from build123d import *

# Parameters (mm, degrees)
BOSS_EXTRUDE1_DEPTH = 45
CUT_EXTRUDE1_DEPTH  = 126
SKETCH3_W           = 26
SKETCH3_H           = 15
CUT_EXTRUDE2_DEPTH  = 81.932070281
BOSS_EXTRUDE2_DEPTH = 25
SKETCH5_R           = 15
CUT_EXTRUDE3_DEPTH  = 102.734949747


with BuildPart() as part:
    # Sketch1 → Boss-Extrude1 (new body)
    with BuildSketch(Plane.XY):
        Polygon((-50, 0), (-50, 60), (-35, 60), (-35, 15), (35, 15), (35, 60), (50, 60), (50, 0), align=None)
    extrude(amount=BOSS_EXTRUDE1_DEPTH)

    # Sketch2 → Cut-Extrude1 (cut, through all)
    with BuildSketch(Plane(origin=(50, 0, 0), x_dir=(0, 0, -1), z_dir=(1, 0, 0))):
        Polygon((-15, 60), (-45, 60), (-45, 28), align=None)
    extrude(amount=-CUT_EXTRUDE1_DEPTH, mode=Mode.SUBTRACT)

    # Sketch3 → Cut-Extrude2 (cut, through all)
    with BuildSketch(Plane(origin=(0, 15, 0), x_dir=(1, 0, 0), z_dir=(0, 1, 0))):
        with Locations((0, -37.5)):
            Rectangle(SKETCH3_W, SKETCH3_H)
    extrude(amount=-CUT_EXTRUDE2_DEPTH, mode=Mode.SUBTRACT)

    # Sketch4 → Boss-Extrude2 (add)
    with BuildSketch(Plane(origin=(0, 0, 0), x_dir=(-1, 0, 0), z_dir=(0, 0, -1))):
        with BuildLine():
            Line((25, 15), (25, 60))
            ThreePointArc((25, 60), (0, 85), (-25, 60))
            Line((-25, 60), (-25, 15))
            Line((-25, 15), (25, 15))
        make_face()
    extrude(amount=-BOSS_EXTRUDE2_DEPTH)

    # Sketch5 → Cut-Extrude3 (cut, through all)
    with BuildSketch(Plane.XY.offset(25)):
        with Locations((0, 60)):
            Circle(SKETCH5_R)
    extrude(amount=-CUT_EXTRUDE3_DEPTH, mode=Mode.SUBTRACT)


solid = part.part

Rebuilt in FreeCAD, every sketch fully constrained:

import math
import FreeCAD as App
import Part
import Sketcher

V = App.Vector
Q = App.Units.Quantity


def add_polygon(sketch, points):
    """Adds a closed chain of lines whose ends are joined by coincident constraints."""
    first, n = sketch.GeometryCount, len(points)
    for a, b in zip(points, points[1:] + points[:1]):
        sketch.addGeometry(Part.LineSegment(App.Vector(*a, 0), App.Vector(*b, 0)), False)
    for i in range(n):
        sketch.addConstraint(Sketcher.Constraint("Coincident", first + i, 2, first + (i + 1) % n, 1))

doc = App.newDocument("Part")
body = doc.addObject("PartDesign::Body", "Body")

# Sketch on XY plane
sketch1 = body.newObject("Sketcher::SketchObject", "Sketch")
sketch1.AttachmentSupport = (doc.getObject("XY_Plane"), [""])
sketch1.MapMode = "FlatFace"
add_polygon(sketch1, [(-50, 60), (-50, 0), (50, 0), (50, 60), (35, 60), (35, 15), (-35, 15), (-35, 60)])  # lines 0-7
sketch1.addConstraint([
    Sketcher.Constraint("Vertical", 0),
    Sketcher.Constraint("Horizontal", 1),
    Sketcher.Constraint("Vertical", 2),
    Sketcher.Constraint("Horizontal", 3),
    Sketcher.Constraint("Vertical", 4),
    Sketcher.Constraint("Horizontal", 5),
    Sketcher.Constraint("Vertical", 6),
    Sketcher.Constraint("Horizontal", 7),
    Sketcher.Constraint("Symmetric", 0, 2, 1, 2, -1, 1),
    Sketcher.Constraint("Symmetric", 3, 2, 6, 2, -2),
    Sketcher.Constraint("DistanceX", 1, 1, 1, 2, Q("100 mm")),
    Sketcher.Constraint("DistanceX", 3, 2, 3, 1, Q("15 mm")),
    Sketcher.Constraint("DistanceY", 0, 2, 0, 1, Q("60 mm")),
    Sketcher.Constraint("DistanceY", 4, 2, 4, 1, Q("45 mm")),
])
pad1 = body.newObject("PartDesign::Pad", "Pad")
pad1.Profile = sketch1
pad1.Length = 45

# Sketch on YZ plane
sketch2 = body.newObject("Sketcher::SketchObject", "Sketch001")
sketch2.AttachmentSupport = (doc.getObject("YZ_Plane"), [""])
sketch2.MapMode = "FlatFace"
sketch2.AttachmentOffset = App.Placement(V(0, 0, 50), App.Rotation())
add_polygon(sketch2, [(60, 15), (60, 45), (28, 45)])  # lines 0-2
sketch2.addConstraint([
    Sketcher.Constraint("Vertical", 0),
    Sketcher.Constraint("Horizontal", 1),
    Sketcher.Constraint("DistanceX", 1, 2, 1, 1, Q("32 mm")),
    Sketcher.Constraint("DistanceY", 0, 1, 0, 2, Q("30 mm")),
    Sketcher.Constraint("DistanceX", -1, 1, 0, 2, Q("60 mm")),
    Sketcher.Constraint("DistanceY", -1, 1, 0, 2, Q("45 mm")),
])
pocket1 = body.newObject("PartDesign::Pocket", "Pocket")
pocket1.Profile = sketch2
pocket1.Type = "ThroughAll"

# Sketch on XZ plane
sketch3 = body.newObject("Sketcher::SketchObject", "Sketch002")
sketch3.AttachmentSupport = (doc.getObject("XZ_Plane"), [""])
sketch3.MapMode = "FlatFace"
sketch3.AttachmentOffset = App.Placement(V(0, 0, -15), App.Rotation())
add_polygon(sketch3, [(-13, 30), (-13, 45), (13, 45), (13, 30)])  # lines 0-3
sketch3.addConstraint([
    Sketcher.Constraint("Vertical", 0),
    Sketcher.Constraint("Horizontal", 1),
    Sketcher.Constraint("Vertical", 2),
    Sketcher.Constraint("Horizontal", 3),
    Sketcher.Constraint("DistanceX", 1, 1, 1, 2, Q("26 mm")),
    Sketcher.Constraint("DistanceY", 0, 1, 0, 2, Q("15 mm")),
    Sketcher.Constraint("DistanceX", 0, 2, -1, 1, Q("13 mm")),
    Sketcher.Constraint("DistanceY", -1, 1, 0, 2, Q("45 mm")),
])
pocket2 = body.newObject("PartDesign::Pocket", "Pocket001")
pocket2.Profile = sketch3
pocket2.Type = "ThroughAll"
pocket2.Reversed = True

# Sketch on XY plane
sketch4 = body.newObject("Sketcher::SketchObject", "Sketch003")
sketch4.AttachmentSupport = (doc.getObject("XY_Plane"), [""])
sketch4.MapMode = "FlatFace"
sketch4.addGeometry([
    Part.LineSegment(V(-25, 15, 0), V(-25, 60, 0)),
    Part.ArcOfCircle(Part.Circle(V(0, 60, 0), V(0, 0, 1), 25), math.radians(0), math.radians(180)),
    Part.LineSegment(V(25, 60, 0), V(25, 15, 0)),
    Part.LineSegment(V(25, 15, 0), V(-25, 15, 0)),
], False)
sketch4.addConstraint([
    Sketcher.Constraint("Tangent", 0, 2, 1, 2),
    Sketcher.Constraint("Tangent", 1, 1, 2, 1),
    Sketcher.Constraint("Coincident", 2, 2, 3, 1),
    Sketcher.Constraint("Coincident", 3, 2, 0, 1),
    Sketcher.Constraint("Vertical", 0),
    Sketcher.Constraint("Vertical", 2),
    Sketcher.Constraint("Horizontal", 3),
    Sketcher.Constraint("PointOnObject", 1, 3, -2),
    Sketcher.Constraint("Radius", 1, Q("25 mm")),
    Sketcher.Constraint("DistanceY", 0, 1, 0, 2, Q("45 mm")),
    Sketcher.Constraint("DistanceY", -1, 1, 1, 3, Q("60 mm")),
])
pad2 = body.newObject("PartDesign::Pad", "Pad001")
pad2.Profile = sketch4
pad2.Length = 25

# Sketch on XY plane
sketch5 = body.newObject("Sketcher::SketchObject", "Sketch004")
sketch5.AttachmentSupport = (doc.getObject("XY_Plane"), [""])
sketch5.MapMode = "FlatFace"
sketch5.AttachmentOffset = App.Placement(V(0, 0, 25), App.Rotation())
sketch5.addGeometry(Part.Circle(V(0, 60, 0), V(0, 0, 1), 15), False)
sketch5.addConstraint([
    Sketcher.Constraint("PointOnObject", 0, 3, -2),
    Sketcher.Constraint("Diameter", 0, Q("30 mm")),
    Sketcher.Constraint("DistanceY", -1, 1, 0, 3, Q("60 mm")),
])
pocket3 = body.newObject("PartDesign::Pocket", "Pocket002")
pocket3.Profile = sketch5
pocket3.Type = "ThroughAll"

doc.recompute()
